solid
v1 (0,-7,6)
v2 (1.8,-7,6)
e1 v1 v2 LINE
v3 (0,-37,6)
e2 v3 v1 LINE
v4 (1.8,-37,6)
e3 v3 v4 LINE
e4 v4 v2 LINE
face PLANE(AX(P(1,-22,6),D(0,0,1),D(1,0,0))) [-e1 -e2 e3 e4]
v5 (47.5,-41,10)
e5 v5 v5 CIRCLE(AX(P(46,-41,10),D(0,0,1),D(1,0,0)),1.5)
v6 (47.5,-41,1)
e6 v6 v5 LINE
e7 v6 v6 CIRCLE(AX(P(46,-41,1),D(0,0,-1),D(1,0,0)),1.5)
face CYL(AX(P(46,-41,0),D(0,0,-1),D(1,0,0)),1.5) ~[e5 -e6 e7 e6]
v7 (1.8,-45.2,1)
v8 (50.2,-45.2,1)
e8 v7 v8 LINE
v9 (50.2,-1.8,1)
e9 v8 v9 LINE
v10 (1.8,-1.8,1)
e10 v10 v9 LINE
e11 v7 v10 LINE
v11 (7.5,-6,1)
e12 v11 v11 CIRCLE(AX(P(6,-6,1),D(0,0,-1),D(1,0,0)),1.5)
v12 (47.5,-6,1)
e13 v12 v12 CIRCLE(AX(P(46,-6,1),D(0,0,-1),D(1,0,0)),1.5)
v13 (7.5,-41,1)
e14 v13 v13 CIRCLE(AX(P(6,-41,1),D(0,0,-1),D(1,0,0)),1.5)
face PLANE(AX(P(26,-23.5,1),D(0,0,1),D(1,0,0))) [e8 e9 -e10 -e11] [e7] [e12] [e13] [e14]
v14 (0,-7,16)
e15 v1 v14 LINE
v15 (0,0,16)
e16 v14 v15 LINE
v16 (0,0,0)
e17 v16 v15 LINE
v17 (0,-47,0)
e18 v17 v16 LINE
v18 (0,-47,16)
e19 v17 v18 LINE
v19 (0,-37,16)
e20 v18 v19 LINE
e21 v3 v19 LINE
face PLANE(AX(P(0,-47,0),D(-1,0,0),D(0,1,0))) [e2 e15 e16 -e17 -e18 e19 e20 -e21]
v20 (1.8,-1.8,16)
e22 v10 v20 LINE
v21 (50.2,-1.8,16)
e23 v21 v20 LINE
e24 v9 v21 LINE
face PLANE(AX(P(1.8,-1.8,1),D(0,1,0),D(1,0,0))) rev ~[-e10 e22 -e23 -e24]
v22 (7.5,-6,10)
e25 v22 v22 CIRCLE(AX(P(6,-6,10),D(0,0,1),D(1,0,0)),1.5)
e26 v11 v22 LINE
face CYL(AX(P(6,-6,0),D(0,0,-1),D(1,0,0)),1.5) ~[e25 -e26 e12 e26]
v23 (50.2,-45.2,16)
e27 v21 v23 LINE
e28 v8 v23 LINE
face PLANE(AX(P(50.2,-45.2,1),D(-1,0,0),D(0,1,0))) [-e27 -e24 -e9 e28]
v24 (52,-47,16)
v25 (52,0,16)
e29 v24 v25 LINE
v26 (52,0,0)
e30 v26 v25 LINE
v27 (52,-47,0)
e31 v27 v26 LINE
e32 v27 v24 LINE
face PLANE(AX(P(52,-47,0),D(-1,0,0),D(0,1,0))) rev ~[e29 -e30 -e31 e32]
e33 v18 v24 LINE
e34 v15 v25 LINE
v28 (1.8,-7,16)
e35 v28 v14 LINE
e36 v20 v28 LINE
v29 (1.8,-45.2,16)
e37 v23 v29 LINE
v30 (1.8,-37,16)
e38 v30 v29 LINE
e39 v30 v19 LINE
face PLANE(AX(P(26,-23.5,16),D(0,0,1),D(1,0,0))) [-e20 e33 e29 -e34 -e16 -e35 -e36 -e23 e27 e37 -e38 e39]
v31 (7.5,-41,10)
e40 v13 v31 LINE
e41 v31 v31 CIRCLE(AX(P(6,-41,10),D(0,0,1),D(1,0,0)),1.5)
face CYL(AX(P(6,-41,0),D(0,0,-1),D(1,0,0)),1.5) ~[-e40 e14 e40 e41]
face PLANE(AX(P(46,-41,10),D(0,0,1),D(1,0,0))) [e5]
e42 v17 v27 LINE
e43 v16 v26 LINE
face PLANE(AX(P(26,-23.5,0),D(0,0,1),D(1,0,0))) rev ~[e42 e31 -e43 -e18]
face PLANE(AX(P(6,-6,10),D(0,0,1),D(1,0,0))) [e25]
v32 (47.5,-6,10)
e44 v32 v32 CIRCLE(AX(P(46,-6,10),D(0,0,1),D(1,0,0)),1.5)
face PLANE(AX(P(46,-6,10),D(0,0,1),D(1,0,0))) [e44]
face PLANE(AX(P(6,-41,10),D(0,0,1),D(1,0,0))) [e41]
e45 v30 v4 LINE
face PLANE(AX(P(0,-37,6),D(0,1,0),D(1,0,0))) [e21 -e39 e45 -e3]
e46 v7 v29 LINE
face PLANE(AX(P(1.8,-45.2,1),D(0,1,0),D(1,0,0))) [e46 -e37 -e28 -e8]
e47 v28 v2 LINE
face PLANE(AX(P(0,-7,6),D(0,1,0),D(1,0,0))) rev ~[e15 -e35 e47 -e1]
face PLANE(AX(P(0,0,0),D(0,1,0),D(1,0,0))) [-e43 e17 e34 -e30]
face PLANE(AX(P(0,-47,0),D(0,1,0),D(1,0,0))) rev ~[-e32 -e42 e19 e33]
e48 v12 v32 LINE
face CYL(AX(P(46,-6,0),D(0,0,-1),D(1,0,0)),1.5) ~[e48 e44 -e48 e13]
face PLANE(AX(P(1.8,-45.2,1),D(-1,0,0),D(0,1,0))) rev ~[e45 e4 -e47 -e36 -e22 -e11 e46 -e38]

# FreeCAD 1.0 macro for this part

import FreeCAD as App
import Part
import Sketcher

doc = App.newDocument("Part")
body = doc.addObject("PartDesign::Body", "Body")

# Sketch on XY plane
sketch1 = body.newObject("Sketcher::SketchObject", "Sketch")
sketch1.AttachmentSupport = (doc.getObject("XY_Plane"), [""])
sketch1.MapMode = "FlatFace"
sketch1.addGeometry([
    Part.LineSegment(App.Vector(0, 47, 0), App.Vector(0, 0, 0)),  # 0
    Part.LineSegment(App.Vector(0, 0, 0), App.Vector(52, 0, 0)),  # 1
    Part.LineSegment(App.Vector(52, 0, 0), App.Vector(52, 47, 0)),  # 2
    Part.LineSegment(App.Vector(52, 47, 0), App.Vector(0, 47, 0)),  # 3
    Part.LineSegment(App.Vector(50, 2, 0), App.Vector(2, 2, 0)),  # 4
    Part.LineSegment(App.Vector(2, 2, 0), App.Vector(2, 45, 0)),  # 5
    Part.LineSegment(App.Vector(2, 45, 0), App.Vector(50, 45, 0)),  # 6
    Part.LineSegment(App.Vector(50, 45, 0), App.Vector(50, 2, 0)),  # 7
], False)
sketch1.addConstraint([
    Sketcher.Constraint("Coincident", 0, 2, 1, 1),
    Sketcher.Constraint("Coincident", 1, 2, 2, 1),
    Sketcher.Constraint("Coincident", 2, 2, 3, 1),
    Sketcher.Constraint("Coincident", 3, 2, 0, 1),
    Sketcher.Constraint("Coincident", 4, 2, 5, 1),
    Sketcher.Constraint("Coincident", 5, 2, 6, 1),
    Sketcher.Constraint("Coincident", 6, 2, 7, 1),
    Sketcher.Constraint("Coincident", 7, 2, 4, 1),
    Sketcher.Constraint("Vertical", 0),
    Sketcher.Constraint("Horizontal", 1),
    Sketcher.Constraint("Vertical", 2),
    Sketcher.Constraint("Horizontal", 3),
    Sketcher.Constraint("Horizontal", 4),
    Sketcher.Constraint("Vertical", 5),
    Sketcher.Constraint("Horizontal", 6),
    Sketcher.Constraint("Vertical", 7),
    Sketcher.Constraint("Coincident", 0, 2, -1, 1),
    Sketcher.Constraint("DistanceX", 1, 1, 1, 2, 52.0),
    Sketcher.Constraint("DistanceX", 4, 2, 4, 1, 48.0),
    Sketcher.Constraint("DistanceY", 0, 2, 0, 1, 47.0),
    Sketcher.Constraint("DistanceY", 5, 1, 5, 2, 43.0),
    Sketcher.Constraint("DistanceX", -1, 1, 4, 2, 2.0),
    Sketcher.Constraint("DistanceY", -1, 1, 4, 2, 2.0),
])
pad1 = body.newObject("PartDesign::Pad", "Pad")
pad1.Profile = sketch1
pad1.Length = 16

# Sketch on XY plane
sketch2 = body.newObject("Sketcher::SketchObject", "Sketch001")
sketch2.AttachmentSupport = (doc.getObject("XY_Plane"), [""])
sketch2.MapMode = "FlatFace"
sketch2.addGeometry([
    Part.LineSegment(App.Vector(2, 45, 0), App.Vector(2, 2, 0)),  # 0
    Part.LineSegment(App.Vector(2, 2, 0), App.Vector(50, 2, 0)),  # 1
    Part.LineSegment(App.Vector(50, 2, 0), App.Vector(50, 45, 0)),  # 2
    Part.LineSegment(App.Vector(50, 45, 0), App.Vector(2, 45, 0)),  # 3
    Part.Circle(App.Vector(6, 6, 0), App.Vector(0, 0, 1), 0.5),  # 4
    Part.Circle(App.Vector(46, 6, 0), App.Vector(0, 0, 1), 0.5),  # 5
    Part.Circle(App.Vector(6, 41, 0), App.Vector(0, 0, 1), 0.5),  # 6
    Part.Circle(App.Vector(46, 41, 0), App.Vector(0, 0, 1), 0.5),  # 7
], False)
sketch2.addConstraint([
    Sketcher.Constraint("Coincident", 0, 2, 1, 1),
    Sketcher.Constraint("Coincident", 1, 2, 2, 1),
    Sketcher.Constraint("Coincident", 2, 2, 3, 1),
    Sketcher.Constraint("Coincident", 3, 2, 0, 1),
    Sketcher.Constraint("Vertical", 0),
    Sketcher.Constraint("Horizontal", 1),
    Sketcher.Constraint("Vertical", 2),
    Sketcher.Constraint("Horizontal", 3),
    Sketcher.Constraint("Equal", 4, 5),
    Sketcher.Constraint("Equal", 5, 6),
    Sketcher.Constraint("Equal", 6, 7),
    Sketcher.Constraint("Horizontal", 4, 3, 5, 3),
    Sketcher.Constraint("Horizontal", 6, 3, 7, 3),
    Sketcher.Constraint("Vertical", 4, 3, 6, 3),
    Sketcher.Constraint("Vertical", 5, 3, 7, 3),
    Sketcher.Constraint("Diameter", 4, 1.0),
    Sketcher.Constraint("DistanceX", 1, 1, 1, 2, 48.0),
    Sketcher.Constraint("DistanceY", 0, 2, 0, 1, 43.0),
    Sketcher.Constraint("DistanceX", -1, 1, 4, 3, 6.0),
    Sketcher.Constraint("DistanceY", -1, 1, 4, 3, 6.0),
    Sketcher.Constraint("DistanceX", -1, 1, 5, 3, 46.0),
    Sketcher.Constraint("DistanceY", -1, 1, 6, 3, 41.0),
    Sketcher.Constraint("DistanceX", -1, 1, 0, 2, 2.0),
    Sketcher.Constraint("DistanceY", -1, 1, 0, 2, 2.0),
])
pad2 = body.newObject("PartDesign::Pad", "Pad001")
pad2.Profile = sketch2
pad2.Length = 1

# Sketch on XY plane
sketch3 = body.newObject("Sketcher::SketchObject", "Sketch002")
sketch3.AttachmentSupport = (doc.getObject("XY_Plane"), [""])
sketch3.MapMode = "FlatFace"
sketch3.addGeometry([
    Part.Circle(App.Vector(6, 41, 0), App.Vector(0, 0, 1), 1.5),
    Part.Circle(App.Vector(6, 6, 0), App.Vector(0, 0, 1), 1.5),
    Part.Circle(App.Vector(46, 6, 0), App.Vector(0, 0, 1), 1.5),
    Part.Circle(App.Vector(46, 41, 0), App.Vector(0, 0, 1), 1.5),
], False)
sketch3.addConstraint([
    Sketcher.Constraint("Equal", 0, 1),
    Sketcher.Constraint("Equal", 1, 2),
    Sketcher.Constraint("Equal", 2, 3),
    Sketcher.Constraint("Horizontal", 1, 3, 2, 3),
    Sketcher.Constraint("Horizontal", 0, 3, 3, 3),
    Sketcher.Constraint("Vertical", 0, 3, 1, 3),
    Sketcher.Constraint("Vertical", 2, 3, 3, 3),
    Sketcher.Constraint("Diameter", 0, 3.0),
    Sketcher.Constraint("DistanceX", -1, 1, 0, 3, 6.0),
    Sketcher.Constraint("DistanceY", -1, 1, 0, 3, 41.0),
    Sketcher.Constraint("DistanceY", -1, 1, 1, 3, 6.0),
    Sketcher.Constraint("DistanceX", -1, 1, 2, 3, 46.0),
])
pad3 = body.newObject("PartDesign::Pad", "Pad002")
pad3.Profile = sketch3
pad3.Length = 10

# Sketch on XY plane
sketch4 = body.newObject("Sketcher::SketchObject", "Sketch003")
sketch4.AttachmentSupport = (doc.getObject("XY_Plane"), [""])
sketch4.MapMode = "FlatFace"
sketch4.AttachmentOffset = App.Placement(App.Vector(0, 0, 1), App.Rotation())
sketch4.addGeometry([
    Part.LineSegment(App.Vector(1.8, 45.2, 0), App.Vector(1.8, 1.8, 0)),  # 0
    Part.LineSegment(App.Vector(1.8, 1.8, 0), App.Vector(50.2, 1.8, 0)),  # 1
    Part.LineSegment(App.Vector(50.2, 1.8, 0), App.Vector(50.2, 45.2, 0)),  # 2
    Part.LineSegment(App.Vector(50.2, 45.2, 0), App.Vector(1.8, 45.2, 0)),  # 3
    Part.LineSegment(App.Vector(48.731218, 3.532659, 0), App.Vector(3.292051, 3.532659, 0)),  # 4
    Part.LineSegment(App.Vector(3.292051, 3.532659, 0), App.Vector(3.292051, 43.581809, 0)),  # 5
    Part.LineSegment(App.Vector(3.292051, 43.581809, 0), App.Vector(48.731218, 43.581809, 0)),  # 6
    Part.LineSegment(App.Vector(48.731218, 43.581809, 0), App.Vector(48.731218, 3.532659, 0)),  # 7
], False)
sketch4.addConstraint([
    Sketcher.Constraint("Coincident", 0, 2, 1, 1),
    Sketcher.Constraint("Coincident", 1, 2, 2, 1),
    Sketcher.Constraint("Coincident", 2, 2, 3, 1),
    Sketcher.Constraint("Coincident", 3, 2, 0, 1),
    Sketcher.Constraint("Coincident", 4, 2, 5, 1),
    Sketcher.Constraint("Coincident", 5, 2, 6, 1),
    Sketcher.Constraint("Coincident", 6, 2, 7, 1),
    Sketcher.Constraint("Coincident", 7, 2, 4, 1),
    Sketcher.Constraint("Vertical", 0),
    Sketcher.Constraint("Horizontal", 1),
    Sketcher.Constraint("Vertical", 2),
    Sketcher.Constraint("Horizontal", 3),
    Sketcher.Constraint("Horizontal", 4),
    Sketcher.Constraint("Vertical", 5),
    Sketcher.Constraint("Horizontal", 6),
    Sketcher.Constraint("Vertical", 7),
    Sketcher.Constraint("DistanceX", 1, 1, 1, 2, 48.4),
    Sketcher.Constraint("DistanceY", 0, 2, 0, 1, 43.4),
    Sketcher.Constraint("DistanceX", -1, 1, 0, 2, 1.8),
    Sketcher.Constraint("DistanceY", -1, 1, 0, 2, 1.8),
    Sketcher.Constraint("DistanceY", 5, 1, 5, 2, 40.049149),
    Sketcher.Constraint("DistanceX", 4, 2, 4, 1, 45.439167),
    Sketcher.Constraint("DistanceX", -1, 1, 4, 2, 3.292051),
    Sketcher.Constraint("DistanceY", -1, 1, 4, 2, 3.532659),
])
pocket1 = body.newObject("PartDesign::Pocket", "Pocket")
pocket1.Profile = sketch4
pocket1.Type = "ThroughAll"
pocket1.Reversed = True

# Sketch on XY plane
sketch5 = body.newObject("Sketcher::SketchObject", "Sketch004")
sketch5.AttachmentSupport = (doc.getObject("XY_Plane"), [""])
sketch5.MapMode = "FlatFace"
sketch5.AttachmentOffset = App.Placement(App.Vector(0, 0, 6), App.Rotation())
sketch5.addGeometry([
    Part.LineSegment(App.Vector(0, 40, 0), App.Vector(0, 10, 0)),
    Part.LineSegment(App.Vector(0, 10, 0), App.Vector(2, 10, 0)),
    Part.LineSegment(App.Vector(2, 10, 0), App.Vector(2, 40, 0)),
    Part.LineSegment(App.Vector(2, 40, 0), App.Vector(0, 40, 0)),
], False)
sketch5.addConstraint([
    Sketcher.Constraint("Coincident", 0, 2, 1, 1),
    Sketcher.Constraint("Coincident", 1, 2, 2, 1),
    Sketcher.Constraint("Coincident", 2, 2, 3, 1),
    Sketcher.Constraint("Coincident", 3, 2, 0, 1),
    Sketcher.Constraint("Vertical", 0),
    Sketcher.Constraint("Horizontal", 1),
    Sketcher.Constraint("Vertical", 2),
    Sketcher.Constraint("Horizontal", 3),
    Sketcher.Constraint("PointOnObject", 0, 2, -2),
    Sketcher.Constraint("DistanceX", 1, 1, 1, 2, 2.0),
    Sketcher.Constraint("DistanceY", 0, 2, 0, 1, 30.0),
    Sketcher.Constraint("DistanceY", -1, 1, 0, 2, 10.0),
])
pocket2 = body.newObject("PartDesign::Pocket", "Pocket001")
pocket2.Profile = sketch5
pocket2.Type = "ThroughAll"
pocket2.Reversed = True
body2 = doc.addObject("PartDesign::Body", "Body001")
doc.recompute()

body.Placement = App.Placement(App.Vector(0, -47, 0), App.Rotation(App.Vector(0, 0, 1), 0))
boolean = body2.newObject("PartDesign::Boolean", "Boolean")
boolean.Type = "Fuse"
boolean.addObjects([body])

doc.recompute()
